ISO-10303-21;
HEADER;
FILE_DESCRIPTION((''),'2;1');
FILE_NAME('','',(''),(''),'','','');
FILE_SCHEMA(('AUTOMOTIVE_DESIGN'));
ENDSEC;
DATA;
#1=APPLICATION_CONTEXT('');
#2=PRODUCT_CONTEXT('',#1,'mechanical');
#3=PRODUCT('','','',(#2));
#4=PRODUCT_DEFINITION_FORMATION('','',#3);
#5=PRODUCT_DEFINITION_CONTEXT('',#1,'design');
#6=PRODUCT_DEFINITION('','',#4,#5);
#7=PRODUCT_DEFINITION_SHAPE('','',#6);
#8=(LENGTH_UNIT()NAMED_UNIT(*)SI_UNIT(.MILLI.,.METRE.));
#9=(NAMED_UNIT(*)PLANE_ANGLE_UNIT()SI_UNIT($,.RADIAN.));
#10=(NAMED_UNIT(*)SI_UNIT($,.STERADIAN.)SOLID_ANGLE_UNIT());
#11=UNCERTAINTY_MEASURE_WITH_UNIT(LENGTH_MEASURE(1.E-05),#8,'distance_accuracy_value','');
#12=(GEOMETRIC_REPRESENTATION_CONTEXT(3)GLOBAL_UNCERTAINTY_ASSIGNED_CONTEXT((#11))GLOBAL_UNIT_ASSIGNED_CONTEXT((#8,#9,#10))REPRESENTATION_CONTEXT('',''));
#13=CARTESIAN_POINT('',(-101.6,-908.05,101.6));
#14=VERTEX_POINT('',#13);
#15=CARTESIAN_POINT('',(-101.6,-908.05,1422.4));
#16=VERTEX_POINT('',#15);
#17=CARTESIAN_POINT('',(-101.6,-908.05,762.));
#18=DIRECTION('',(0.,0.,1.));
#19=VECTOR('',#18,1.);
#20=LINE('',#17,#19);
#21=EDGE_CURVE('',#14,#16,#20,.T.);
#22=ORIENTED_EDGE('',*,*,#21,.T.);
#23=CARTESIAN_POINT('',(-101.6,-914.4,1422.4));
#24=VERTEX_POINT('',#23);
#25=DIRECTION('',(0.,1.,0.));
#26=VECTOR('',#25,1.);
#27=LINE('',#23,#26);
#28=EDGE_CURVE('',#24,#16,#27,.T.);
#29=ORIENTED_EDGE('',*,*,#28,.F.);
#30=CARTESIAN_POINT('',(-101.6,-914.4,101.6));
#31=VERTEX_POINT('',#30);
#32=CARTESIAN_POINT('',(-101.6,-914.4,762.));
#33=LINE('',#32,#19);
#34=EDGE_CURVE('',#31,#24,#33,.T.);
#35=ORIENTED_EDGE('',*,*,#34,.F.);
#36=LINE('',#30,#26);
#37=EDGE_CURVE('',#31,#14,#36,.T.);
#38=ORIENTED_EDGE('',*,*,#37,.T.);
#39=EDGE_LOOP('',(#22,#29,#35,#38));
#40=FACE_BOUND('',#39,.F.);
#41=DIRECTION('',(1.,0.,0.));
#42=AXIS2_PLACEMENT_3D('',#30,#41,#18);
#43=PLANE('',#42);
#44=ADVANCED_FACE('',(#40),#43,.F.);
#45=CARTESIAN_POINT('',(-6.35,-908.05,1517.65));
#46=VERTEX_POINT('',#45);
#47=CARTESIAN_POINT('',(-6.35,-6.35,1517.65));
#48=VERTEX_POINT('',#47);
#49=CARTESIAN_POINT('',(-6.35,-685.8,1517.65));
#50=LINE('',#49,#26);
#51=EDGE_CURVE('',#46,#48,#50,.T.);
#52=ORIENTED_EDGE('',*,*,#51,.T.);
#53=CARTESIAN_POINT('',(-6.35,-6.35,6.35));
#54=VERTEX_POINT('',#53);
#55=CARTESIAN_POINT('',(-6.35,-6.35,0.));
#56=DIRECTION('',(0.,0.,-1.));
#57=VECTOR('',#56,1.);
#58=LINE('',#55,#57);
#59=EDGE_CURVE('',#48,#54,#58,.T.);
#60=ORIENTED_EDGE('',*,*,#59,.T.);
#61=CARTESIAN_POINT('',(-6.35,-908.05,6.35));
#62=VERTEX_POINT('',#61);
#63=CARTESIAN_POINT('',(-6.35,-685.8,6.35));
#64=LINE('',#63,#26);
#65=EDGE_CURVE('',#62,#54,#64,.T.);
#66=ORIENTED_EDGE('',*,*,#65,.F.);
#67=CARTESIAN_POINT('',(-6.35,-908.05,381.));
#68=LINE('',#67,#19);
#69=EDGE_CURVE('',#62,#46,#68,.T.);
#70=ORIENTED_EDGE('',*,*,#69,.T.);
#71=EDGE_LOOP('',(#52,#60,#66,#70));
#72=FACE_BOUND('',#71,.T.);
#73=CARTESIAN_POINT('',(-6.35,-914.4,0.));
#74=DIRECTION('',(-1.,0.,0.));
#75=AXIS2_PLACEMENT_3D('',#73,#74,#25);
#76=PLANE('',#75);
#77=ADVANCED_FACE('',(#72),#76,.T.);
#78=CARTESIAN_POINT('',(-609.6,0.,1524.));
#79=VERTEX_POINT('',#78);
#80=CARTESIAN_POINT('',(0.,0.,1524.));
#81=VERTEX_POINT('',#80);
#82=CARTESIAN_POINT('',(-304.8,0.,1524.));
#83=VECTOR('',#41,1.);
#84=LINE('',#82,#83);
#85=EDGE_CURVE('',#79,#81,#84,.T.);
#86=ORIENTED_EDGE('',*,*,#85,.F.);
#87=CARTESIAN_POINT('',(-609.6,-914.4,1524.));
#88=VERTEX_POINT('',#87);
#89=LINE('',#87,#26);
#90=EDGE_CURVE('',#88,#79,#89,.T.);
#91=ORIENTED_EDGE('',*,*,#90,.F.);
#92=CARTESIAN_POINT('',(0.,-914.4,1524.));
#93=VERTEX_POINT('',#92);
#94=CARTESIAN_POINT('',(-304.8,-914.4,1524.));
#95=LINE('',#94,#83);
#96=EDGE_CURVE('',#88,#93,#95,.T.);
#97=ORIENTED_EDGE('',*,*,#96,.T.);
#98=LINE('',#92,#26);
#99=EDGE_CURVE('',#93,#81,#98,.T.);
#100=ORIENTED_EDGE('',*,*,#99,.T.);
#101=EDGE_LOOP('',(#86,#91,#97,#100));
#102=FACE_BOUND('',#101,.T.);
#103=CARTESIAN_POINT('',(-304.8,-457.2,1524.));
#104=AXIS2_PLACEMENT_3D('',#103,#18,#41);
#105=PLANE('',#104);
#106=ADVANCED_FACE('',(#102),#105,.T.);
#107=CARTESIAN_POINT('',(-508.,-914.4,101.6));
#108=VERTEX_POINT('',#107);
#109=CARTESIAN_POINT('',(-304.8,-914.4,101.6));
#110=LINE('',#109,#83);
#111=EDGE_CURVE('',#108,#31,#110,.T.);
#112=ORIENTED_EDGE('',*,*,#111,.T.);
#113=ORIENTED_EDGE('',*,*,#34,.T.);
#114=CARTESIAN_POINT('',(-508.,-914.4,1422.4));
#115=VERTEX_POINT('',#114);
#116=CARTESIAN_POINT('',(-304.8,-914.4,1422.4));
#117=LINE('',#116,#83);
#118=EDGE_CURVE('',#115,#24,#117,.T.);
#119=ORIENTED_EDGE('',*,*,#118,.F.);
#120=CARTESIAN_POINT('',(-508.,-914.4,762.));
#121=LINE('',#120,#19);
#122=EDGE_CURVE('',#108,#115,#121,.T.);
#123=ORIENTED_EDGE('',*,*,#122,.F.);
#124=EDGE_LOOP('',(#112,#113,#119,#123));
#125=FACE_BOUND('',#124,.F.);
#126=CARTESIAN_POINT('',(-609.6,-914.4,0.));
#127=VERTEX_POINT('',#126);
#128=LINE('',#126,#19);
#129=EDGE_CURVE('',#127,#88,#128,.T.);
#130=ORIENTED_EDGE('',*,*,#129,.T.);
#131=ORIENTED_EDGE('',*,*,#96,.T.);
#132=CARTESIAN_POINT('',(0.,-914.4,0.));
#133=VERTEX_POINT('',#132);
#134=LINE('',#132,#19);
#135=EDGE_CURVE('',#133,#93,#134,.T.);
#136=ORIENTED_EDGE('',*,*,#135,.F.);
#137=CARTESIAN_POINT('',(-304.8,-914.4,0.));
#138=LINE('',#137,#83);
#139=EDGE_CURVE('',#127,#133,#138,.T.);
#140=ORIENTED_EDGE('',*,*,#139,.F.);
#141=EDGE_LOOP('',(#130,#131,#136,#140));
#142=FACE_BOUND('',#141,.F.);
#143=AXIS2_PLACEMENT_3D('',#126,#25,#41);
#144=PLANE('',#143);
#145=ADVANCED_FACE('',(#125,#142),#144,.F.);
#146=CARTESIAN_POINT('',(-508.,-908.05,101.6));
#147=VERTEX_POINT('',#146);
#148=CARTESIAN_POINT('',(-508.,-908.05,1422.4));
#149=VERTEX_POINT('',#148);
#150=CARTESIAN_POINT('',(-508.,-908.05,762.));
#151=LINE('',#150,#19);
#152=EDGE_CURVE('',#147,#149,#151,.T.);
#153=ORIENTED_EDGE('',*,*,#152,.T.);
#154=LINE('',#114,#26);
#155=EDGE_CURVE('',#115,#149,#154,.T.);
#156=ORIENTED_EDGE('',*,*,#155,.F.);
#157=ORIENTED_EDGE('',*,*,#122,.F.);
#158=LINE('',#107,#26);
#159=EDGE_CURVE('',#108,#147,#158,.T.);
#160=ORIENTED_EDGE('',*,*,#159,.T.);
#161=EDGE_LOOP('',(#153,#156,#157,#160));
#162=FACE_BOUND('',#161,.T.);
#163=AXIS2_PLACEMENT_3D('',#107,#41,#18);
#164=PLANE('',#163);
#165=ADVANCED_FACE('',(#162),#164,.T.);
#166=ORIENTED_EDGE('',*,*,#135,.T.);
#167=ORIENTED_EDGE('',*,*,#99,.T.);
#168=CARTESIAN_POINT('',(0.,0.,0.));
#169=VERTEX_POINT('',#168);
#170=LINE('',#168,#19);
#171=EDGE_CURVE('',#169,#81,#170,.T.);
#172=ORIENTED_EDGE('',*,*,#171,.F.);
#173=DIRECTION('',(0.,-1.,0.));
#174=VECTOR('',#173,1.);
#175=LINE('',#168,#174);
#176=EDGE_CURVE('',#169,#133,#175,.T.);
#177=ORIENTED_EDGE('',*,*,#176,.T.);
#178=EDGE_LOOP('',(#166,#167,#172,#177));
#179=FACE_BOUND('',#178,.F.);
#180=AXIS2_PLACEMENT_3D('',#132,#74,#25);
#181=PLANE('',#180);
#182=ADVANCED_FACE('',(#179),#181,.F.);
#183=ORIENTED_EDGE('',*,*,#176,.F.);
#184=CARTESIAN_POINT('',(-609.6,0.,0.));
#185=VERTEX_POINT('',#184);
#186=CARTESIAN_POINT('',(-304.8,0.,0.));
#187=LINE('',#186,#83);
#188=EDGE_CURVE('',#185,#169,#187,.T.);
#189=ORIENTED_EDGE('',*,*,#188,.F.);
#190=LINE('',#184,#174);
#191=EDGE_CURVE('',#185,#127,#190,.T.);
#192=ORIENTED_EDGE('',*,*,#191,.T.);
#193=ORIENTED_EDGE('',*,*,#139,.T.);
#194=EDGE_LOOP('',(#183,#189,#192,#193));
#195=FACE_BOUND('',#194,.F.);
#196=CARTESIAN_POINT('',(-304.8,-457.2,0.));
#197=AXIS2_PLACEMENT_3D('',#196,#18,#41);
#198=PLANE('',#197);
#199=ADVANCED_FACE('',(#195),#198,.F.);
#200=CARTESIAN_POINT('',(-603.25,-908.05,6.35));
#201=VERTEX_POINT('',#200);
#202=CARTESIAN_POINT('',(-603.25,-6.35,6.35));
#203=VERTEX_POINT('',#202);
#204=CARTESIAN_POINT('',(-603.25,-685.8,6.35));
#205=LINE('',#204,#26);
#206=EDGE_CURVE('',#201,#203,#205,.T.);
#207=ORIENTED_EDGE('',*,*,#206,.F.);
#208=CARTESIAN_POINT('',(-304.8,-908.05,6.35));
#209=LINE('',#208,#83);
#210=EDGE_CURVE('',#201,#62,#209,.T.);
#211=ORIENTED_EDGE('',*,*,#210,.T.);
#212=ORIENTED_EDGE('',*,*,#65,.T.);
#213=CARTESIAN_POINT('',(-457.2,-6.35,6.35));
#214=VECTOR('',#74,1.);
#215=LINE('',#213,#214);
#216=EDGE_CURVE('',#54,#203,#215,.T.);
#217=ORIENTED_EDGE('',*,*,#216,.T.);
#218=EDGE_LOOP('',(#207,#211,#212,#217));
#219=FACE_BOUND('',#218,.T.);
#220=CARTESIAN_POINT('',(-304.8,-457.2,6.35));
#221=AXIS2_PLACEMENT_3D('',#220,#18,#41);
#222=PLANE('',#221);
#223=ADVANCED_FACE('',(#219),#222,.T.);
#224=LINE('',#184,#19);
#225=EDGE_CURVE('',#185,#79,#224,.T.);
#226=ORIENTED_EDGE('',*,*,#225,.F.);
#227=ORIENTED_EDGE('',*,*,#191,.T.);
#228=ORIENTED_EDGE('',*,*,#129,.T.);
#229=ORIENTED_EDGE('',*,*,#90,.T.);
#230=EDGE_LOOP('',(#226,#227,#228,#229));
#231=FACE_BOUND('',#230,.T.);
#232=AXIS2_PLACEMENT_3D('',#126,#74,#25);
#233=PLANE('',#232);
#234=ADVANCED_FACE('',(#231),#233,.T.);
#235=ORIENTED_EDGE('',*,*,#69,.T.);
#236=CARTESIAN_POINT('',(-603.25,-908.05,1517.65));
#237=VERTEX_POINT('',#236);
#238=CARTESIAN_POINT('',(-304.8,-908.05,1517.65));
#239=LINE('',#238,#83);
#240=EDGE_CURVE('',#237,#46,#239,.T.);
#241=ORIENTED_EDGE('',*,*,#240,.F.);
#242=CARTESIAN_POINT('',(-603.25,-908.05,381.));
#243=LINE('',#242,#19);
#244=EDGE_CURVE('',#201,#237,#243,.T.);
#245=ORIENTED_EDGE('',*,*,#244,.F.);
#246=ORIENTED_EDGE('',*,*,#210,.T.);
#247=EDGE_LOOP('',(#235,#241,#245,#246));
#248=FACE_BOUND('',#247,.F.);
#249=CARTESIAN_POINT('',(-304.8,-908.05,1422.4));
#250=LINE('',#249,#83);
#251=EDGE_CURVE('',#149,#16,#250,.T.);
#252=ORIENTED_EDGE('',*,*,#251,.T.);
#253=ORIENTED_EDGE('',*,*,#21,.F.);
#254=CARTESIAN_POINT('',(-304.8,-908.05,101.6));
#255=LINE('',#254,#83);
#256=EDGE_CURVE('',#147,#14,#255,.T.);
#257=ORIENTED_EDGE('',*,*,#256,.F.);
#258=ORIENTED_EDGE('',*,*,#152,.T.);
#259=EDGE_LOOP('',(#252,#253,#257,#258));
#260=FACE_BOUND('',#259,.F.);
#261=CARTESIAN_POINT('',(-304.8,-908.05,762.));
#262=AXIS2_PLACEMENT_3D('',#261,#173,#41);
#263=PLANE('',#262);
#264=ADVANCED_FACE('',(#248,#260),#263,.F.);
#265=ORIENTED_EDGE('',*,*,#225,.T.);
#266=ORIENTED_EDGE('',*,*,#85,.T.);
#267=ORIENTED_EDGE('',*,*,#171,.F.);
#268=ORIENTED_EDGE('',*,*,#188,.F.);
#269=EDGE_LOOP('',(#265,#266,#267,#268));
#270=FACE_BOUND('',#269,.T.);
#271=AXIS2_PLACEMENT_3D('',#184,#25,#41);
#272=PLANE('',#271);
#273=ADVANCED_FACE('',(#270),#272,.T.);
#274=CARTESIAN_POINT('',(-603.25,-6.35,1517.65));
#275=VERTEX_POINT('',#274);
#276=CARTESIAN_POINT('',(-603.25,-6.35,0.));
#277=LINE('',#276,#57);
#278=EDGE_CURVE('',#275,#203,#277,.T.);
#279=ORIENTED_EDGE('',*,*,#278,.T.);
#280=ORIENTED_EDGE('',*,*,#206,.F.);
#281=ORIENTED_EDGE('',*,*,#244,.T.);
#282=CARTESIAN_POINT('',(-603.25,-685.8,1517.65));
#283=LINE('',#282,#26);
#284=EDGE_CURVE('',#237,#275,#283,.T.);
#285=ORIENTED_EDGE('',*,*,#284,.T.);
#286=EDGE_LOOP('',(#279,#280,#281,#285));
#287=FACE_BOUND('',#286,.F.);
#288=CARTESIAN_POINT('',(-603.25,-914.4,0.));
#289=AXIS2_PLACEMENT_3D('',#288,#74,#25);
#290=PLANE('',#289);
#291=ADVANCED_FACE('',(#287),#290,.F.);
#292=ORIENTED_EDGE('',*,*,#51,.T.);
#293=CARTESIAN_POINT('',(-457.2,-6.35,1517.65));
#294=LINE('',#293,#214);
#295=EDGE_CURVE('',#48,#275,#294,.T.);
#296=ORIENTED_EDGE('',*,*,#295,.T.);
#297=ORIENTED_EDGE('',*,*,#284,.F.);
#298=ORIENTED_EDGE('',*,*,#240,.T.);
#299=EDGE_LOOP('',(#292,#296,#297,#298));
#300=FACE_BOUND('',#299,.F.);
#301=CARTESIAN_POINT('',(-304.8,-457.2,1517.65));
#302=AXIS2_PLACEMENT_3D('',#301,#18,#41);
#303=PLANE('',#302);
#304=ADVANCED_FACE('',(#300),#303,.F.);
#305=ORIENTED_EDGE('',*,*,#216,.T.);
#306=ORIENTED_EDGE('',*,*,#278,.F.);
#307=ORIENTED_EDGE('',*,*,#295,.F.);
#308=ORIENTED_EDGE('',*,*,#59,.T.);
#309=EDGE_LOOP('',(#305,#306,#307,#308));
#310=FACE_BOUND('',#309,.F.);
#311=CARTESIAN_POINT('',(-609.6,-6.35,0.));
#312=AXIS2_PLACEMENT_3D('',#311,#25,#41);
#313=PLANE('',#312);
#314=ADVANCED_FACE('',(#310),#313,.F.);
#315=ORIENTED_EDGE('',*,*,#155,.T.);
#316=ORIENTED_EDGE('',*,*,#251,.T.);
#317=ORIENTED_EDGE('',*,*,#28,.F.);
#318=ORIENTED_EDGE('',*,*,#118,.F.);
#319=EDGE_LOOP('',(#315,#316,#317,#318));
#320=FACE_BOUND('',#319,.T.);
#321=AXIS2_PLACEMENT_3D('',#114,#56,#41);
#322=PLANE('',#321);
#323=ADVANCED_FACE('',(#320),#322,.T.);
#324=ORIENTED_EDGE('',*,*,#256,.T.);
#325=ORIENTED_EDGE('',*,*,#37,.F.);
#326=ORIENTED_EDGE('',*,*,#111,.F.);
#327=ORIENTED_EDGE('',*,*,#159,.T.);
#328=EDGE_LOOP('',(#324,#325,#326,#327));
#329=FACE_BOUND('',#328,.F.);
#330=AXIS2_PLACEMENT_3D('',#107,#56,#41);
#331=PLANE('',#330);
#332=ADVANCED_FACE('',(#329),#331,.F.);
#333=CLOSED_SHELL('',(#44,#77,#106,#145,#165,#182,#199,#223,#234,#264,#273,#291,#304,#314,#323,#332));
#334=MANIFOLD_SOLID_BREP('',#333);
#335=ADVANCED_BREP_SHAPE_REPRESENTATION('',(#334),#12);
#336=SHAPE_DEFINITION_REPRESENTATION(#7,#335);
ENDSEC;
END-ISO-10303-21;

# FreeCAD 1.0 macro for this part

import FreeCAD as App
import Part
import Sketcher
from FreeCAD import Vector
Q = App.Units.Quantity


def faces_at(feature, points):
    """Names of the faces that lie closest to the given points."""
    faces = feature.Shape.Faces
    near = lambda p: min(range(len(faces)), key=lambda i: faces[i].distToShape(Part.Vertex(*p))[0])
    return sorted({f"Face{near(p) + 1}" for p in points})

doc = App.newDocument("Part")
body = doc.addObject("PartDesign::Body", "Body")

# Sketch on XY plane
sketch1 = body.newObject("Sketcher::SketchObject", "Sketch")
sketch1.AttachmentSupport = (doc.getObject("XY_Plane"), [""])
sketch1.MapMode = "FlatFace"
sketch1.addGeometry([
    Part.LineSegment(Vector(-610, 0, 0), Vector(-610, -914, 0)),
    Part.LineSegment(Vector(-610, -914, 0), Vector(0, -914, 0)),
    Part.LineSegment(Vector(0, -914, 0), Vector(0, 0, 0)),
    Part.LineSegment(Vector(0, 0, 0), Vector(-610, 0, 0)),
], False)
sketch1.addConstraint([
    Sketcher.Constraint("Coincident", 0, 2, 1, 1),
    Sketcher.Constraint("Coincident", 1, 2, 2, 1),
    Sketcher.Constraint("Coincident", 2, 2, 3, 1),
    Sketcher.Constraint("Coincident", 3, 2, 0, 1),
    Sketcher.Constraint("Vertical", 0),
    Sketcher.Constraint("Horizontal", 1),
    Sketcher.Constraint("Vertical", 2),
    Sketcher.Constraint("Horizontal", 3),
    Sketcher.Constraint("Coincident", 2, 2, -1, 1),
    Sketcher.Constraint("DistanceX", 1, 1, 1, 2, Q("24 in")),
    Sketcher.Constraint("DistanceY", 0, 2, 0, 1, Q("36 in")),
])
pad1 = body.newObject("PartDesign::Pad", "Pad")
pad1.Profile = sketch1
pad1.Length = Q("60 in")
doc.recompute()

thickness = body.newObject("PartDesign::Thickness", "Thickness")
thickness.Base = (pad1, faces_at(pad1, [(-304.8, -914.4, 762)]))
thickness.Value = Q("0.25 in")
thickness.Reversed = True
thickness.Join = "Arc"

# Sketch on XZ plane
sketch2 = body.newObject("Sketcher::SketchObject", "Sketch001")
sketch2.AttachmentSupport = (doc.getObject("XZ_Plane"), [""])
sketch2.MapMode = "FlatFace"
sketch2.AttachmentOffset = App.Placement(Vector(0, 0, 36 * 25.4), App.Rotation())
sketch2.addGeometry([
    Part.LineSegment(Vector(-610, 1524, 0), Vector(-610, 0, 0)),  # 0
    Part.LineSegment(Vector(-610, 0, 0), Vector(0, 0, 0)),  # 1
    Part.LineSegment(Vector(0, 0, 0), Vector(0, 1524, 0)),  # 2
    Part.LineSegment(Vector(0, 1524, 0), Vector(-610, 1524, 0)),  # 3
    Part.LineSegment(Vector(-102, 102, 0), Vector(-508, 102, 0)),  # 4
    Part.LineSegment(Vector(-508, 102, 0), Vector(-508, 1422, 0)),  # 5
    Part.LineSegment(Vector(-508, 1422, 0), Vector(-102, 1422, 0)),  # 6
    Part.LineSegment(Vector(-102, 1422, 0), Vector(-102, 102, 0)),  # 7
], False)
sketch2.addConstraint([
    Sketcher.Constraint("Coincident", 0, 2, 1, 1),
    Sketcher.Constraint("Coincident", 1, 2, 2, 1),
    Sketcher.Constraint("Coincident", 2, 2, 3, 1),
    Sketcher.Constraint("Coincident", 3, 2, 0, 1),
    Sketcher.Constraint("Coincident", 4, 2, 5, 1),
    Sketcher.Constraint("Coincident", 5, 2, 6, 1),
    Sketcher.Constraint("Coincident", 6, 2, 7, 1),
    Sketcher.Constraint("Coincident", 7, 2, 4, 1),
    Sketcher.Constraint("Vertical", 0),
    Sketcher.Constraint("Horizontal", 1),
    Sketcher.Constraint("Vertical", 2),
    Sketcher.Constraint("Horizontal", 3),
    Sketcher.Constraint("Horizontal", 4),
    Sketcher.Constraint("Vertical", 5),
    Sketcher.Constraint("Horizontal", 6),
    Sketcher.Constraint("Vertical", 7),
    Sketcher.Constraint("Coincident", 1, 2, -1, 1),
    Sketcher.Constraint("DistanceX", 1, 1, 1, 2, Q("24 in")),
    Sketcher.Constraint("DistanceX", 4, 2, 4, 1, Q("16 in")),
    Sketcher.Constraint("DistanceY", 0, 2, 0, 1, Q("60 in")),
    Sketcher.Constraint("DistanceY", 5, 1, 5, 2, Q("52 in")),
    Sketcher.Constraint("DistanceX", 4, 2, -1, 1, Q("20 in")),
    Sketcher.Constraint("DistanceY", -1, 1, 4, 2, Q("4 in")),
])
pad2 = body.newObject("PartDesign::Pad", "Pad001")
pad2.Profile = sketch2
pad2.Length = Q("0.25 in")
pad2.Reversed = True

doc.recompute()
